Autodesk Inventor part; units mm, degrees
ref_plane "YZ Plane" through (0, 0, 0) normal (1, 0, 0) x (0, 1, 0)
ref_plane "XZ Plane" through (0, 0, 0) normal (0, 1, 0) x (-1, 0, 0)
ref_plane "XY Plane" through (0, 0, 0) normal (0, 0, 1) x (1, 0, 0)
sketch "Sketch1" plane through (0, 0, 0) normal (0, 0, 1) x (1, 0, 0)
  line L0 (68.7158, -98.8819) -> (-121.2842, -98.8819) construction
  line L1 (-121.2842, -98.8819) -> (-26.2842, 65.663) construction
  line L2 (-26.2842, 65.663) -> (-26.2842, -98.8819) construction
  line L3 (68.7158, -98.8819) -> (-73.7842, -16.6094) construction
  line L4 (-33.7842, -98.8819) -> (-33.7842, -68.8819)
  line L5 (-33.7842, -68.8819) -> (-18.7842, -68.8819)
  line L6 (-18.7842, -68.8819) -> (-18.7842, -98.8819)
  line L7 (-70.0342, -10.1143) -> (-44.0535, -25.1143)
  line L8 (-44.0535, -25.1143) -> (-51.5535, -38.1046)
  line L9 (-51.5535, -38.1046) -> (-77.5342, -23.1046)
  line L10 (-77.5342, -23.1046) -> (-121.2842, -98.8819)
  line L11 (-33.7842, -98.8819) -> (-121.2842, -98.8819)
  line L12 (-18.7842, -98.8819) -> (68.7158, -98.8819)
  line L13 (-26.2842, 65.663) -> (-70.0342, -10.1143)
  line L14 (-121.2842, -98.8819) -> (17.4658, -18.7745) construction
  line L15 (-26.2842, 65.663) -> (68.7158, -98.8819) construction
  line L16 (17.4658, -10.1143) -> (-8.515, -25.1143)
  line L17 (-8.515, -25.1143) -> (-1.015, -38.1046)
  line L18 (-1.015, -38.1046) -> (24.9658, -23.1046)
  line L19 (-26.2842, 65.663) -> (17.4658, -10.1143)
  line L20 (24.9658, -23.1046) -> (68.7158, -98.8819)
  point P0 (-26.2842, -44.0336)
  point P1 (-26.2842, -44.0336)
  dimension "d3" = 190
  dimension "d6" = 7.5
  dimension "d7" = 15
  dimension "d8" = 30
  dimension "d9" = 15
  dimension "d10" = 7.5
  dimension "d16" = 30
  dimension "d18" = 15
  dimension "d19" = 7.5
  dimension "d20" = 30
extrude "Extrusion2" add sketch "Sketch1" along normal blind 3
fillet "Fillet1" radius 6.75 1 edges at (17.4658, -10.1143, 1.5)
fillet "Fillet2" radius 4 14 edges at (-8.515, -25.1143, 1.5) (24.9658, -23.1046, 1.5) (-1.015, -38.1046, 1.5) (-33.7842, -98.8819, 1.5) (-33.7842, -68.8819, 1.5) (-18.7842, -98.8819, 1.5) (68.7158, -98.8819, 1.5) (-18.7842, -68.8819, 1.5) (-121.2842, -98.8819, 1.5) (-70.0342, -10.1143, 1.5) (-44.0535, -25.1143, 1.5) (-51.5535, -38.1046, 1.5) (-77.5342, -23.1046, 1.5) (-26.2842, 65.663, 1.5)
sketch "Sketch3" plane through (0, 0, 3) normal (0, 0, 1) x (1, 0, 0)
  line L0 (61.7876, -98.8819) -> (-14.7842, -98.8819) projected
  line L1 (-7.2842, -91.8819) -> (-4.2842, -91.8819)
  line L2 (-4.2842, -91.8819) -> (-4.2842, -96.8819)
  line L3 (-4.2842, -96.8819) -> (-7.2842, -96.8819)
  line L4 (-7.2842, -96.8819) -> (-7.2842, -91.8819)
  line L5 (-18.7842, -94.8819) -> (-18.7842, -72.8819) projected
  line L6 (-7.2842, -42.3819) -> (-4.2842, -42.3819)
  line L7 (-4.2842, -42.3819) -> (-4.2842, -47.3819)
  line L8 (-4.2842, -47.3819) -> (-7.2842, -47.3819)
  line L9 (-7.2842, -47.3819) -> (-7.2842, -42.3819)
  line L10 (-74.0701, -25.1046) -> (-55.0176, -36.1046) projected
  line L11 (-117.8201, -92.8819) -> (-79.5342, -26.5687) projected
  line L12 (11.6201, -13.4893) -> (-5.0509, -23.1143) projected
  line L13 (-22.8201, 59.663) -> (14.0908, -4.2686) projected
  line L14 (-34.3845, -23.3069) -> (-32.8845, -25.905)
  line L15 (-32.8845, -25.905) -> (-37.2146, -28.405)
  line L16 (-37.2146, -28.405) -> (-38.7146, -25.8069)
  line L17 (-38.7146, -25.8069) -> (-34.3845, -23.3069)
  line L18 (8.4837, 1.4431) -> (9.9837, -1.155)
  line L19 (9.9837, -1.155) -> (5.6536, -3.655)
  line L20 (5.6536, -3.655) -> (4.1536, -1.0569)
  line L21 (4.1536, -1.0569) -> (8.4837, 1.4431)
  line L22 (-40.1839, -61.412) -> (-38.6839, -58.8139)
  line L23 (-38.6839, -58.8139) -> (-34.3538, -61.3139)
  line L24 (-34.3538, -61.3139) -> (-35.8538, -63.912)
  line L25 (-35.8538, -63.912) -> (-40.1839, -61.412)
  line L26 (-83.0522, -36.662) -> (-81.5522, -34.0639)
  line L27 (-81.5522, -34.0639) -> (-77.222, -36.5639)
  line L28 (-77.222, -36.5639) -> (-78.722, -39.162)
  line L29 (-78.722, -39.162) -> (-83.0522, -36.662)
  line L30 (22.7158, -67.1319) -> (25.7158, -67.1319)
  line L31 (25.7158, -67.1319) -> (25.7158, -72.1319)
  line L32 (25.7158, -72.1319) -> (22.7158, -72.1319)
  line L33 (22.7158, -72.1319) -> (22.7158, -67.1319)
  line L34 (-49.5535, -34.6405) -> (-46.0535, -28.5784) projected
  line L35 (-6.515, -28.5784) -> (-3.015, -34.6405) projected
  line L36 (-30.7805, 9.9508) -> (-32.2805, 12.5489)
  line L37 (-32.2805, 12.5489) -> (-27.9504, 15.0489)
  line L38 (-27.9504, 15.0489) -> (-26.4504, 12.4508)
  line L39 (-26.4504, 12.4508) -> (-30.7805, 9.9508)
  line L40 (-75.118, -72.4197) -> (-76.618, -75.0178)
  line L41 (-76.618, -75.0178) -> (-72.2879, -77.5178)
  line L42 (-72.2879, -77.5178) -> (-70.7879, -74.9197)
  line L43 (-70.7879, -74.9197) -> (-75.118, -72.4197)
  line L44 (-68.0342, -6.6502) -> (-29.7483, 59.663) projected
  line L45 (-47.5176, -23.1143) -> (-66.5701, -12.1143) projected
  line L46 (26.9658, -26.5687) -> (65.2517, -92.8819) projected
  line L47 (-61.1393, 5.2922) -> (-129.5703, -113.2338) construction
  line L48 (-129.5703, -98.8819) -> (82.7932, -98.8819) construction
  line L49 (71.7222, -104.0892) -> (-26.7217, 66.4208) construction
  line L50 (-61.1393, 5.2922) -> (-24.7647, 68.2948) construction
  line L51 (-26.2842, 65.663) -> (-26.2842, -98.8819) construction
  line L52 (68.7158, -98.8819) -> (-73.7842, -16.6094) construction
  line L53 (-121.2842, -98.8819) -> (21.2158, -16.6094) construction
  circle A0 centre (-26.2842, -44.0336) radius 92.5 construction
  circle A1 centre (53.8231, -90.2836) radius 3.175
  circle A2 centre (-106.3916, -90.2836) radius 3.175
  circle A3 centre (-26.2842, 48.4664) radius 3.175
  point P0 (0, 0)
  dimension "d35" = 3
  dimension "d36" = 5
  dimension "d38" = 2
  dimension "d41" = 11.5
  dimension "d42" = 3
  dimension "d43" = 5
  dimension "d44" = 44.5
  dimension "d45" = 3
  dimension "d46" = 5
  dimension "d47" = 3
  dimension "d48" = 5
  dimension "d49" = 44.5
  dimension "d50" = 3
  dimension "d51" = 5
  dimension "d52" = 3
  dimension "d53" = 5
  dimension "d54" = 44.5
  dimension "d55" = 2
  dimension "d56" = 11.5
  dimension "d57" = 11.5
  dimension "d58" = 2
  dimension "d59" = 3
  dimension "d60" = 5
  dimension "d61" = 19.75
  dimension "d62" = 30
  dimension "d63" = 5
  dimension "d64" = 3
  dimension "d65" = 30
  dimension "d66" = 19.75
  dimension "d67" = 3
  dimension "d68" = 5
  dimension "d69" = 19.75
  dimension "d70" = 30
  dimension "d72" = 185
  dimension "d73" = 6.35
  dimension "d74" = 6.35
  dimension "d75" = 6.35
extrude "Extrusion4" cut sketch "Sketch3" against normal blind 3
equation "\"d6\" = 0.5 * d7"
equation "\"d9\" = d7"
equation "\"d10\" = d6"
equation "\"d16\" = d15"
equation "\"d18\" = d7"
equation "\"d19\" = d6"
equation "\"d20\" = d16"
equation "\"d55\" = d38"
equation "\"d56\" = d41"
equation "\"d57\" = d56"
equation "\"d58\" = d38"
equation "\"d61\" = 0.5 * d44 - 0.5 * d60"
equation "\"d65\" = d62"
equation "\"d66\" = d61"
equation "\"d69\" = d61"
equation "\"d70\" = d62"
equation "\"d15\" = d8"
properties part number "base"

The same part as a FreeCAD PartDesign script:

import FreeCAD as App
import Part
import Sketcher
from FreeCAD import Vector
Q = App.Units.Quantity


def edges_at(feature, points):
    """Names of the edges that pass closest to the given points."""
    edges = feature.Shape.Edges
    near = lambda p: min(range(len(edges)), key=lambda i: edges[i].distToShape(Part.Vertex(*p))[0])
    return sorted({f"Edge{near(p) + 1}" for p in points})

doc = App.newDocument("Part")
body = doc.addObject("PartDesign::Body", "Body")

# Sketch on XY plane
sketch1 = body.newObject("Sketcher::SketchObject", "Sketch")
sketch1.AttachmentSupport = (doc.getObject("XY_Plane"), [""])
sketch1.MapMode = "FlatFace"
sketch1.addGeometry([
    Part.LineSegment(Vector(-121, -99, 0), Vector(-34, -99, 0)),  # 0
    Part.LineSegment(Vector(-34, -99, 0), Vector(-34, -69, 0)),  # 1
    Part.LineSegment(Vector(-34, -69, 0), Vector(-19, -69, 0)),  # 2
    Part.LineSegment(Vector(-19, -69, 0), Vector(-19, -99, 0)),  # 3
    Part.LineSegment(Vector(-19, -99, 0), Vector(69, -99, 0)),  # 4
    Part.LineSegment(Vector(69, -99, 0), Vector(25, -23, 0)),  # 5
    Part.LineSegment(Vector(25, -23, 0), Vector(-1, -38, 0)),  # 6
    Part.LineSegment(Vector(-1, -38, 0), Vector(-9, -25, 0)),  # 7
    Part.LineSegment(Vector(-9, -25, 0), Vector(17, -10, 0)),  # 8
    Part.LineSegment(Vector(17, -10, 0), Vector(-26, 66, 0)),  # 9
    Part.LineSegment(Vector(-26, 66, 0), Vector(-70, -10, 0)),  # 10
    Part.LineSegment(Vector(-70, -10, 0), Vector(-44, -25, 0)),  # 11
    Part.LineSegment(Vector(-44, -25, 0), Vector(-52, -38, 0)),  # 12
    Part.LineSegment(Vector(-52, -38, 0), Vector(-78, -23, 0)),  # 13
    Part.LineSegment(Vector(-78, -23, 0), Vector(-121, -99, 0)),  # 14
], False)
sketch1.addConstraint([
    Sketcher.Constraint("Coincident", 0, 2, 1, 1),
    Sketcher.Constraint("Coincident", 1, 2, 2, 1),
    Sketcher.Constraint("Coincident", 2, 2, 3, 1),
    Sketcher.Constraint("Coincident", 3, 2, 4, 1),
    Sketcher.Constraint("Coincident", 4, 2, 5, 1),
    Sketcher.Constraint("Coincident", 5, 2, 6, 1),
    Sketcher.Constraint("Coincident", 6, 2, 7, 1),
    Sketcher.Constraint("Coincident", 7, 2, 8, 1),
    Sketcher.Constraint("Coincident", 8, 2, 9, 1),
    Sketcher.Constraint("Coincident", 9, 2, 10, 1),
    Sketcher.Constraint("Coincident", 10, 2, 11, 1),
    Sketcher.Constraint("Coincident", 11, 2, 12, 1),
    Sketcher.Constraint("Coincident", 12, 2, 13, 1),
    Sketcher.Constraint("Coincident", 13, 2, 14, 1),
    Sketcher.Constraint("Coincident", 14, 2, 0, 1),
    Sketcher.Constraint("Horizontal", 0),
    Sketcher.Constraint("Vertical", 1),
    Sketcher.Constraint("Horizontal", 2),
    Sketcher.Constraint("Vertical", 3),
    Sketcher.Constraint("Horizontal", 4),
    Sketcher.Constraint("Perpendicular", 5, 6),
    Sketcher.Constraint("Perpendicular", 6, 7),
    Sketcher.Constraint("Perpendicular", 7, 8),
    Sketcher.Constraint("Perpendicular", 8, 9),
    Sketcher.Constraint("Perpendicular", 10, 11),
    Sketcher.Constraint("Perpendicular", 11, 12),
    Sketcher.Constraint("Perpendicular", 12, 13),
    Sketcher.Constraint("Perpendicular", 13, 14),
    Sketcher.Constraint("Horizontal", 0, 2, 3, 2),
    Sketcher.Constraint("Horizontal", 8, 2, 10, 2),
    Sketcher.Constraint("Horizontal", 7, 2, 11, 2),
    Sketcher.Constraint("Horizontal", 6, 2, 12, 2),
    Sketcher.Constraint("Horizontal", 5, 2, 13, 2),
    Sketcher.Constraint("Equal", 0, 4),
    Sketcher.Constraint("Equal", 6, 8),
    Sketcher.Constraint("Equal", 5, 9),
    Sketcher.Constraint("Equal", 9, 10),
    Sketcher.Constraint("DistanceX", 2, 1, 2, 2, Q("15 mm")),
    Sketcher.Constraint("DistanceY", 1, 1, 1, 2, Q("30 mm")),
    Sketcher.Constraint("Angle", 8, Q("30 deg")),
    Sketcher.Constraint("Distance", 6, Q("30 mm")),
    Sketcher.Constraint("Distance", 7, Q("15 mm")),
    Sketcher.Constraint("DistanceX", 0, 1, 0, 2, Q("87.5 mm")),
    Sketcher.Constraint("DistanceY", 0, 2, -1, 1, Q("98.882 mm")),
    Sketcher.Constraint("DistanceX", 6, 2, -1, 1, Q("1.015 mm")),
])
pad1 = body.newObject("PartDesign::Pad", "Pad")
pad1.Profile = sketch1
pad1.Length = 3
doc.recompute()

fillet = body.newObject("PartDesign::Fillet", "Fillet")
fillet.Base = (pad1, edges_at(pad1, [(17.466, -10.114, 1.5)]))
fillet.Radius = 6.75
doc.recompute()

fillet2 = body.newObject("PartDesign::Fillet", "Fillet001")
fillet2.Base = (fillet, edges_at(fillet, [
    (-8.515, -25.114, 1.5),
    (24.966, -23.105, 1.5),
    (-1.015, -38.105, 1.5),
    (-33.784, -98.882, 1.5),
    (-33.784, -68.882, 1.5),
    (-18.784, -98.882, 1.5),
    (68.716, -98.882, 1.5),
    (-18.784, -68.882, 1.5),
    (-121.284, -98.882, 1.5),
    (-70.034, -10.114, 1.5),
    (-44.053, -25.114, 1.5),
    (-51.553, -38.105, 1.5),
    (-77.534, -23.105, 1.5),
    (-26.284, 65.663, 1.5),
]))
fillet2.Radius = 4

# Sketch on XY plane
sketch2 = body.newObject("Sketcher::SketchObject", "Sketch001")
sketch2.AttachmentSupport = (doc.getObject("XY_Plane"), [""])
sketch2.MapMode = "FlatFace"
sketch2.AttachmentOffset = App.Placement(Vector(0, 0, 3), App.Rotation())
sketch2.addGeometry([
    Part.LineSegment(Vector(-4.3, -91.9, 0), Vector(-7.3, -91.9, 0)),  # 0
    Part.LineSegment(Vector(-7.3, -91.9, 0), Vector(-7.3, -96.9, 0)),  # 1
    Part.LineSegment(Vector(-7.3, -96.9, 0), Vector(-4.3, -96.9, 0)),  # 2
    Part.LineSegment(Vector(-4.3, -96.9, 0), Vector(-4.3, -91.9, 0)),  # 3
    Part.LineSegment(Vector(-4.3, -42.4, 0), Vector(-7.3, -42.4, 0)),  # 4
    Part.LineSegment(Vector(-7.3, -42.4, 0), Vector(-7.3, -47.4, 0)),  # 5
    Part.LineSegment(Vector(-7.3, -47.4, 0), Vector(-4.3, -47.4, 0)),  # 6
    Part.LineSegment(Vector(-4.3, -47.4, 0), Vector(-4.3, -42.4, 0)),  # 7
    Part.LineSegment(Vector(-32.9, -25.9, 0), Vector(-34.4, -23.3, 0)),  # 8
    Part.LineSegment(Vector(-34.4, -23.3, 0), Vector(-38.7, -25.8, 0)),  # 9
    Part.LineSegment(Vector(-38.7, -25.8, 0), Vector(-37.2, -28.4, 0)),  # 10
    Part.LineSegment(Vector(-37.2, -28.4, 0), Vector(-32.9, -25.9, 0)),  # 11
    Part.LineSegment(Vector(10, -1.2, 0), Vector(8.5, 1.4, 0)),  # 12
    Part.LineSegment(Vector(8.5, 1.4, 0), Vector(4.2, -1.1, 0)),  # 13
    Part.LineSegment(Vector(4.2, -1.1, 0), Vector(5.7, -3.7, 0)),  # 14
    Part.LineSegment(Vector(5.7, -3.7, 0), Vector(10, -1.2, 0)),  # 15
    Part.LineSegment(Vector(-38.7, -58.8, 0), Vector(-40.2, -61.4, 0)),  # 16
    Part.LineSegment(Vector(-40.2, -61.4, 0), Vector(-35.9, -63.9, 0)),  # 17
    Part.LineSegment(Vector(-35.9, -63.9, 0), Vector(-34.4, -61.3, 0)),  # 18
    Part.LineSegment(Vector(-34.4, -61.3, 0), Vector(-38.7, -58.8, 0)),  # 19
    Part.LineSegment(Vector(-81.6, -34.1, 0), Vector(-83.1, -36.7, 0)),  # 20
    Part.LineSegment(Vector(-83.1, -36.7, 0), Vector(-78.7, -39.2, 0)),  # 21
    Part.LineSegment(Vector(-78.7, -39.2, 0), Vector(-77.2, -36.6, 0)),  # 22
    Part.LineSegment(Vector(-77.2, -36.6, 0), Vector(-81.6, -34.1, 0)),  # 23
    Part.LineSegment(Vector(25.7, -67.1, 0), Vector(22.7, -67.1, 0)),  # 24
    Part.LineSegment(Vector(22.7, -67.1, 0), Vector(22.7, -72.1, 0)),  # 25
    Part.LineSegment(Vector(22.7, -72.1, 0), Vector(25.7, -72.1, 0)),  # 26
    Part.LineSegment(Vector(25.7, -72.1, 0), Vector(25.7, -67.1, 0)),  # 27
    Part.LineSegment(Vector(-32.3, 12.5, 0), Vector(-30.8, 10, 0)),  # 28
    Part.LineSegment(Vector(-30.8, 10, 0), Vector(-26.5, 12.5, 0)),  # 29
    Part.LineSegment(Vector(-26.5, 12.5, 0), Vector(-28, 15, 0)),  # 30
    Part.LineSegment(Vector(-28, 15, 0), Vector(-32.3, 12.5, 0)),  # 31
    Part.LineSegment(Vector(-70.8, -74.9, 0), Vector(-75.1, -72.4, 0)),  # 32
    Part.LineSegment(Vector(-75.1, -72.4, 0), Vector(-76.6, -75, 0)),  # 33
    Part.LineSegment(Vector(-76.6, -75, 0), Vector(-72.3, -77.5, 0)),  # 34
    Part.LineSegment(Vector(-72.3, -77.5, 0), Vector(-70.8, -74.9, 0)),  # 35
    Part.Circle(Vector(53.8, -90.3, 0), Vector(0, 0, 1), 3.2),  # 36
    Part.Circle(Vector(-106.4, -90.3, 0), Vector(0, 0, 1), 3.2),  # 37
    Part.Circle(Vector(-26.3, 48.5, 0), Vector(0, 0, 1), 3.2),  # 38
], False)
sketch2.addConstraint([
    Sketcher.Constraint("Coincident", 0, 2, 1, 1),
    Sketcher.Constraint("Coincident", 1, 2, 2, 1),
    Sketcher.Constraint("Coincident", 2, 2, 3, 1),
    Sketcher.Constraint("Coincident", 3, 2, 0, 1),
    Sketcher.Constraint("Coincident", 4, 2, 5, 1),
    Sketcher.Constraint("Coincident", 5, 2, 6, 1),
    Sketcher.Constraint("Coincident", 6, 2, 7, 1),
    Sketcher.Constraint("Coincident", 7, 2, 4, 1),
    Sketcher.Constraint("Coincident", 8, 2, 9, 1),
    Sketcher.Constraint("Coincident", 9, 2, 10, 1),
    Sketcher.Constraint("Coincident", 10, 2, 11, 1),
    Sketcher.Constraint("Coincident", 11, 2, 8, 1),
    Sketcher.Constraint("Coincident", 12, 2, 13, 1),
    Sketcher.Constraint("Coincident", 13, 2, 14, 1),
    Sketcher.Constraint("Coincident", 14, 2, 15, 1),
    Sketcher.Constraint("Coincident", 15, 2, 12, 1),
    Sketcher.Constraint("Coincident", 16, 2, 17, 1),
    Sketcher.Constraint("Coincident", 17, 2, 18, 1),
    Sketcher.Constraint("Coincident", 18, 2, 19, 1),
    Sketcher.Constraint("Coincident", 19, 2, 16, 1),
    Sketcher.Constraint("Coincident", 20, 2, 21, 1),
    Sketcher.Constraint("Coincident", 21, 2, 22, 1),
    Sketcher.Constraint("Coincident", 22, 2, 23, 1),
    Sketcher.Constraint("Coincident", 23, 2, 20, 1),
    Sketcher.Constraint("Coincident", 24, 2, 25, 1),
    Sketcher.Constraint("Coincident", 25, 2, 26, 1),
    Sketcher.Constraint("Coincident", 26, 2, 27, 1),
    Sketcher.Constraint("Coincident", 27, 2, 24, 1),
    Sketcher.Constraint("Coincident", 28, 2, 29, 1),
    Sketcher.Constraint("Coincident", 29, 2, 30, 1),
    Sketcher.Constraint("Coincident", 30, 2, 31, 1),
    Sketcher.Constraint("Coincident", 31, 2, 28, 1),
    Sketcher.Constraint("Coincident", 32, 2, 33, 1),
    Sketcher.Constraint("Coincident", 33, 2, 34, 1),
    Sketcher.Constraint("Coincident", 34, 2, 35, 1),
    Sketcher.Constraint("Coincident", 35, 2, 32, 1),
    Sketcher.Constraint("Horizontal", 0),
    Sketcher.Constraint("Vertical", 1),
    Sketcher.Constraint("Horizontal", 2),
    Sketcher.Constraint("Vertical", 3),
    Sketcher.Constraint("Horizontal", 4),
    Sketcher.Constraint("Vertical", 5),
    Sketcher.Constraint("Horizontal", 6),
    Sketcher.Constraint("Vertical", 7),
    Sketcher.Constraint("Horizontal", 24),
    Sketcher.Constraint("Vertical", 25),
    Sketcher.Constraint("Horizontal", 26),
    Sketcher.Constraint("Vertical", 27),
    Sketcher.Constraint("Equal", 36, 37),
    Sketcher.Constraint("Equal", 37, 38),
    Sketcher.Constraint("Perpendicular", 8, 9),
    Sketcher.Constraint("Perpendicular", 9, 10),
    Sketcher.Constraint("Perpendicular", 10, 11),
    Sketcher.Constraint("Perpendicular", 11, 12),
    Sketcher.Constraint("Perpendicular", 12, 13),
    Sketcher.Constraint("Perpendicular", 13, 14),
    Sketcher.Constraint("Perpendicular", 14, 15),
    Sketcher.Constraint("Perpendicular", 16, 17),
    Sketcher.Constraint("Perpendicular", 17, 18),
    Sketcher.Constraint("Perpendicular", 18, 19),
    Sketcher.Constraint("Perpendicular", 19, 20),
    Sketcher.Constraint("Perpendicular", 20, 21),
    Sketcher.Constraint("Perpendicular", 21, 22),
    Sketcher.Constraint("Perpendicular", 22, 23),
    Sketcher.Constraint("Perpendicular", 15, 28),
    Sketcher.Constraint("Perpendicular", 28, 29),
    Sketcher.Constraint("Perpendicular", 29, 30),
    Sketcher.Constraint("Perpendicular", 30, 31),
    Sketcher.Constraint("Parallel", 23, 32),
    Sketcher.Constraint("Perpendicular", 32, 33),
    Sketcher.Constraint("Perpendicular", 33, 34),
    Sketcher.Constraint("Perpendicular", 34, 35),
    Sketcher.Constraint("Horizontal", 36, 3, 37, 3),
    Sketcher.Constraint("Vertical", 1, 2, 4, 2),
    Sketcher.Constraint("Vertical", 3, 2, 6, 2),
    Sketcher.Constraint("Equal", 6, 24),
    Sketcher.Constraint("Equal", 3, 5),
    Sketcher.Constraint("Equal", 7, 25),
    Sketcher.Constraint("Equal", 10, 12),
    Sketcher.Constraint("Equal", 11, 13),
    Sketcher.Constraint("Equal", 14, 16),
    Sketcher.Constraint("Equal", 15, 17),
    Sketcher.Constraint("Equal", 18, 20),
    Sketcher.Constraint("Equal", 19, 21),
    Sketcher.Constraint("Equal", 22, 28),
    Sketcher.Constraint("Equal", 23, 29),
    Sketcher.Constraint("Equal", 31, 32),
    Sketcher.Constraint("Equal", 30, 33),
    Sketcher.Constraint("Diameter", 36, Q("6.35 mm")),
    Sketcher.Constraint("DistanceX", 0, 2, 0, 1, Q("3 mm")),
    Sketcher.Constraint("DistanceY", 1, 2, 1, 1, Q("5 mm")),
    Sketcher.Constraint("Angle", 11, Q("30.0002 deg")),
    Sketcher.Constraint("Angle", 17, Q("-30.0002 deg")),
    Sketcher.Constraint("Distance", 8, Q("3 mm")),
    Sketcher.Constraint("Distance", 9, Q("5 mm")),
    Sketcher.Constraint("DistanceX", 5, 2, 24, 2, Q("30 mm")),
    Sketcher.Constraint("DistanceY", 0, 2, 5, 2, Q("44.5 mm")),
    Sketcher.Constraint("DistanceY", 24, 2, 6, 2, Q("19.75 mm")),
    Sketcher.Constraint("DistanceX", 38, 3, 0, 2, Q("19 mm")),
    Sketcher.Constraint("DistanceY", 36, 3, 38, 3, Q("138.75 mm")),
    Sketcher.Constraint("DistanceY", 8, 2, 12, 2, Q("24.75 mm")),
    Sketcher.Constraint("DistanceY", 16, 2, 5, 2, Q("14.03 mm")),
    Sketcher.Constraint("DistanceY", 16, 2, 20, 2, Q("24.75 mm")),
    Sketcher.Constraint("DistanceX", -1, 1, 36, 3, Q("53.823 mm")),
    Sketcher.Constraint("DistanceY", 0, 2, -1, 1, Q("91.882 mm")),
    Sketcher.Constraint("DistanceY", 8, 2, -1, 1, Q("23.307 mm")),
    Sketcher.Constraint("DistanceX", 16, 2, -1, 1, Q("40.184 mm")),
    Sketcher.Constraint("DistanceX", 21, 2, -1, 1, Q("78.722 mm")),
    Sketcher.Constraint("DistanceY", -1, 1, 30, 2, Q("15.049 mm")),
    Sketcher.Constraint("DistanceX", 32, 2, -1, 1, Q("75.118 mm")),
    Sketcher.Constraint("DistanceX", 7, 2, 12, 2, Q("12.768 mm")),
    Sketcher.Constraint("DistanceX", 8, 2, 13, 2, Q("38.538 mm")),
    Sketcher.Constraint("DistanceX", 8, 2, 28, 2, Q("3.604 mm")),
    Sketcher.Constraint("DistanceY", 37, 3, 32, 2, Q("17.864 mm")),
    Sketcher.Constraint("DistanceY", 33, 2, 22, 2, Q("38.454 mm")),
    Sketcher.Constraint("DistanceX", 37, 3, -1, 1, Q("106.3916 mm")),
    Sketcher.Constraint("DistanceX", 38, 3, -1, 1, Q("26.2842 mm")),
])
pocket1 = body.newObject("PartDesign::Pocket", "Pocket")
pocket1.Profile = sketch2
pocket1.Length = 3

doc.recompute()
